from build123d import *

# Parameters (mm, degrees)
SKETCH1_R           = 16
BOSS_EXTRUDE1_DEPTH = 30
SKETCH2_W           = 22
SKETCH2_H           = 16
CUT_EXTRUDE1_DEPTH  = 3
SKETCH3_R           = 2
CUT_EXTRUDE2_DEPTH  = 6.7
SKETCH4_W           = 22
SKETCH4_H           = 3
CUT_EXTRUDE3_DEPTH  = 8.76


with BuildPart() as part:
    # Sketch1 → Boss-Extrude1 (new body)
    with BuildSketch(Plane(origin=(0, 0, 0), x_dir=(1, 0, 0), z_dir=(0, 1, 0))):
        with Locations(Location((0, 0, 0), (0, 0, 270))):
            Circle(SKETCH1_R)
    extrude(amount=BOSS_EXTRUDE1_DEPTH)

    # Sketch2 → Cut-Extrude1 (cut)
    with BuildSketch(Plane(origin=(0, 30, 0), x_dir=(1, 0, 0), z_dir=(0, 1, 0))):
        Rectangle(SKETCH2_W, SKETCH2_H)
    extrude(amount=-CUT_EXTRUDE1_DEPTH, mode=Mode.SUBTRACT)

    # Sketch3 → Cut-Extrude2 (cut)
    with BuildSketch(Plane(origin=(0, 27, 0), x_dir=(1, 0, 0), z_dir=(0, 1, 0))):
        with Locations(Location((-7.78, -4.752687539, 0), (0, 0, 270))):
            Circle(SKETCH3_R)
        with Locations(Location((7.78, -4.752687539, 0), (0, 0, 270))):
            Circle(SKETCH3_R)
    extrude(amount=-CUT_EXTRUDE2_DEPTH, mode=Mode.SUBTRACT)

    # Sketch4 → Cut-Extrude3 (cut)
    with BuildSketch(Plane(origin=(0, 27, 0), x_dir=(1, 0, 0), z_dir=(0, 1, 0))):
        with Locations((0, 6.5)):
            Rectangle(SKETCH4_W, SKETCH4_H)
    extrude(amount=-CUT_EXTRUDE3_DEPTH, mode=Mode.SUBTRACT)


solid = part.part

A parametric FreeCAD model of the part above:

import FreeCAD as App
import Part
import Sketcher

V = App.Vector


def add_polygon(sketch, points):
    """Adds a closed chain of lines whose ends are joined by coincident constraints."""
    first, n = sketch.GeometryCount, len(points)
    for a, b in zip(points, points[1:] + points[:1]):
        sketch.addGeometry(Part.LineSegment(App.Vector(*a, 0), App.Vector(*b, 0)), False)
    for i in range(n):
        sketch.addConstraint(Sketcher.Constraint("Coincident", first + i, 2, first + (i + 1) % n, 1))

doc = App.newDocument("Part")
body = doc.addObject("PartDesign::Body", "Body")

sketch1 = body.newObject("Sketcher::SketchObject", "Sketch")
sketch1.AttachmentSupport = (doc.getObject("XZ_Plane"), [""])
sketch1.MapMode = "FlatFace"
sketch1.addGeometry(Part.Circle(V(0, 0, 0), V(0, 0, 1), 16), False)
sketch1.addConstraint([
    Sketcher.Constraint("Coincident", 0, 3, -1, 1),
    Sketcher.Constraint("Diameter", 0, 32.0),
])
pad1 = body.newObject("PartDesign::Pad", "Pad")
pad1.Profile = sketch1
pad1.Length = 30
pad1.Reversed = True

sketch2 = body.newObject("Sketcher::SketchObject", "Sketch001")
sketch2.AttachmentSupport = (doc.getObject("XZ_Plane"), [""])
sketch2.MapMode = "FlatFace"
sketch2.AttachmentOffset = App.Placement(V(0, 0, -30), App.Rotation())
add_polygon(sketch2, [(-11, -8), (-11, 8), (11, 8), (11, -8)])
sketch2.addConstraint([
    Sketcher.Constraint("Vertical", 0),
    Sketcher.Constraint("Horizontal", 1),
    Sketcher.Constraint("Vertical", 2),
    Sketcher.Constraint("Horizontal", 3),
    Sketcher.Constraint("Symmetric", 0, 2, 2, 2, -1, 1),
    Sketcher.Constraint("DistanceX", 1, 1, 1, 2, 22.0),
    Sketcher.Constraint("DistanceY", 0, 1, 0, 2, 16.0),
])
pocket1 = body.newObject("PartDesign::Pocket", "Pocket")
pocket1.Profile = sketch2
pocket1.Length = 3
pocket1.Reversed = True

sketch3 = body.newObject("Sketcher::SketchObject", "Sketch002")
sketch3.AttachmentSupport = (doc.getObject("XZ_Plane"), [""])
sketch3.MapMode = "FlatFace"
sketch3.AttachmentOffset = App.Placement(V(0, 0, -27), App.Rotation())
sketch3.addGeometry([
    Part.Circle(V(-7.78, 4.752688, 0), V(0, 0, 1), 2),
    Part.Circle(V(7.78, 4.752688, 0), V(0, 0, 1), 2),
], False)
sketch3.addConstraint([
    Sketcher.Constraint("Equal", 0, 1),
    Sketcher.Constraint("Symmetric", 0, 3, 1, 3, -2),
    Sketcher.Constraint("Diameter", 0, 4.0),
    Sketcher.Constraint("DistanceX", 0, 3, -1, 1, 7.78),
    Sketcher.Constraint("DistanceY", -1, 1, 0, 3, 4.752688),
])
pocket2 = body.newObject("PartDesign::Pocket", "Pocket001")
pocket2.Profile = sketch3
pocket2.Length = 6.7
pocket2.Reversed = True

sketch4 = body.newObject("Sketcher::SketchObject", "Sketch003")
sketch4.AttachmentSupport = (doc.getObject("XZ_Plane"), [""])
sketch4.MapMode = "FlatFace"
sketch4.AttachmentOffset = App.Placement(V(0, 0, -27), App.Rotation())
add_polygon(sketch4, [(-11, -8), (-11, -5), (11, -5), (11, -8)])
sketch4.addConstraint([
    Sketcher.Constraint("Vertical", 0),
    Sketcher.Constraint("Horizontal", 1),
    Sketcher.Constraint("Vertical", 2),
    Sketcher.Constraint("Horizontal", 3),
    Sketcher.Constraint("DistanceX", 1, 1, 1, 2, 22.0),
    Sketcher.Constraint("DistanceY", 0, 1, 0, 2, 3.0),
    Sketcher.Constraint("DistanceX", 0, 2, -1, 1, 11.0),
    Sketcher.Constraint("DistanceY", 0, 2, -1, 1, 5.0),
])
pocket3 = body.newObject("PartDesign::Pocket", "Pocket002")
pocket3.Profile = sketch4
pocket3.Length = 8.76
pocket3.Reversed = True

doc.recompute()
